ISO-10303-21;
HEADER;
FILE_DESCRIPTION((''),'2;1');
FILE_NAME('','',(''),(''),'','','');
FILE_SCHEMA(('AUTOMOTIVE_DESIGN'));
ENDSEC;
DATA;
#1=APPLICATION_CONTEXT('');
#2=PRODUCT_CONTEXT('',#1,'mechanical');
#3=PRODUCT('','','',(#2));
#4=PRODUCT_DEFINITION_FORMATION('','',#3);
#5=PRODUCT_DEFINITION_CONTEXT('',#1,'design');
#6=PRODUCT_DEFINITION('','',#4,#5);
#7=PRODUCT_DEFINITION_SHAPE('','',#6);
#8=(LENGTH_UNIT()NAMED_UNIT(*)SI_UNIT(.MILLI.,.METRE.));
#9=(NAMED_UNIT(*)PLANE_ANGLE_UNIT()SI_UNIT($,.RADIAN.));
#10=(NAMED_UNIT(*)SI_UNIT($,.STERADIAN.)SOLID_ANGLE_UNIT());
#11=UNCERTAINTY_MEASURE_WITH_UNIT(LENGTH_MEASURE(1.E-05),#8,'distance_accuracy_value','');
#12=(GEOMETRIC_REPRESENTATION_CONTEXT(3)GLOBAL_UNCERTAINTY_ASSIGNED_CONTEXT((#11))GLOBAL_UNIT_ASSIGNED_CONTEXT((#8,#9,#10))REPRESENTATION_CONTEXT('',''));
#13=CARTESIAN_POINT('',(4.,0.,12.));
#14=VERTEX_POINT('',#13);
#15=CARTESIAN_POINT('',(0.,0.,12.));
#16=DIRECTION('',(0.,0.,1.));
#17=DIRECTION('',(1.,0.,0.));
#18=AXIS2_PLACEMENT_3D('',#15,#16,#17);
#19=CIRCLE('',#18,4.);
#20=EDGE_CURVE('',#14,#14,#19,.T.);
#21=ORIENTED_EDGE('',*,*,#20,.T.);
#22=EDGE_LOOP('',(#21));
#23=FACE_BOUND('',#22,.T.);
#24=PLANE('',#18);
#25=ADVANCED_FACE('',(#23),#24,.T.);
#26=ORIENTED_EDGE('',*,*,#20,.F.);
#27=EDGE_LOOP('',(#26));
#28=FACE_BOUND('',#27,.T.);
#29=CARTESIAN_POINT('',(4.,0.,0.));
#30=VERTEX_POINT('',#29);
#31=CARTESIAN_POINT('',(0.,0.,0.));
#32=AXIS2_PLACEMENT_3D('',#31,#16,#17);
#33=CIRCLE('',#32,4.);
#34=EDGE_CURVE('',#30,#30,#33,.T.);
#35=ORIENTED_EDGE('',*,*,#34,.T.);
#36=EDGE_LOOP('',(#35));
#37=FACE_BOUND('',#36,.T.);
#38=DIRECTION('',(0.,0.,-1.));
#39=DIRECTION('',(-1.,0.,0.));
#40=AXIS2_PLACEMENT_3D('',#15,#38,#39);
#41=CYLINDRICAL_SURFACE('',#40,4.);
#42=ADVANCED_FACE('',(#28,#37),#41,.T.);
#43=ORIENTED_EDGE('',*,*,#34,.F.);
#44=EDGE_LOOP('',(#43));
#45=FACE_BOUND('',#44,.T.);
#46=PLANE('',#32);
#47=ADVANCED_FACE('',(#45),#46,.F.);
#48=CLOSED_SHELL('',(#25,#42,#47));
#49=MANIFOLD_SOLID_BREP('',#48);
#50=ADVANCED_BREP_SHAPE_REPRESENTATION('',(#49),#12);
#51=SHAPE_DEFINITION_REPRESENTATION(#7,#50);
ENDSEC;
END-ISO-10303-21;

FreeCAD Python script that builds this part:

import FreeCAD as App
import Part
import Sketcher

doc = App.newDocument("Part")
body = doc.addObject("PartDesign::Body", "Body")

sketch1 = body.newObject("Sketcher::SketchObject", "Sketch")
sketch1.AttachmentSupport = (doc.getObject("XY_Plane"), [""])
sketch1.MapMode = "FlatFace"
sketch1.addGeometry(Part.Circle(App.Vector(0, 0, 0), App.Vector(0, 0, 1), 4), False)
sketch1.addConstraint(Sketcher.Constraint("Coincident", 0, 3, -1, 1))
sketch1.addConstraint(Sketcher.Constraint("Diameter", 0, 8.0))
pad1 = body.newObject("PartDesign::Pad", "Pad")
pad1.Profile = sketch1
pad1.Length = 12

doc.recompute()
